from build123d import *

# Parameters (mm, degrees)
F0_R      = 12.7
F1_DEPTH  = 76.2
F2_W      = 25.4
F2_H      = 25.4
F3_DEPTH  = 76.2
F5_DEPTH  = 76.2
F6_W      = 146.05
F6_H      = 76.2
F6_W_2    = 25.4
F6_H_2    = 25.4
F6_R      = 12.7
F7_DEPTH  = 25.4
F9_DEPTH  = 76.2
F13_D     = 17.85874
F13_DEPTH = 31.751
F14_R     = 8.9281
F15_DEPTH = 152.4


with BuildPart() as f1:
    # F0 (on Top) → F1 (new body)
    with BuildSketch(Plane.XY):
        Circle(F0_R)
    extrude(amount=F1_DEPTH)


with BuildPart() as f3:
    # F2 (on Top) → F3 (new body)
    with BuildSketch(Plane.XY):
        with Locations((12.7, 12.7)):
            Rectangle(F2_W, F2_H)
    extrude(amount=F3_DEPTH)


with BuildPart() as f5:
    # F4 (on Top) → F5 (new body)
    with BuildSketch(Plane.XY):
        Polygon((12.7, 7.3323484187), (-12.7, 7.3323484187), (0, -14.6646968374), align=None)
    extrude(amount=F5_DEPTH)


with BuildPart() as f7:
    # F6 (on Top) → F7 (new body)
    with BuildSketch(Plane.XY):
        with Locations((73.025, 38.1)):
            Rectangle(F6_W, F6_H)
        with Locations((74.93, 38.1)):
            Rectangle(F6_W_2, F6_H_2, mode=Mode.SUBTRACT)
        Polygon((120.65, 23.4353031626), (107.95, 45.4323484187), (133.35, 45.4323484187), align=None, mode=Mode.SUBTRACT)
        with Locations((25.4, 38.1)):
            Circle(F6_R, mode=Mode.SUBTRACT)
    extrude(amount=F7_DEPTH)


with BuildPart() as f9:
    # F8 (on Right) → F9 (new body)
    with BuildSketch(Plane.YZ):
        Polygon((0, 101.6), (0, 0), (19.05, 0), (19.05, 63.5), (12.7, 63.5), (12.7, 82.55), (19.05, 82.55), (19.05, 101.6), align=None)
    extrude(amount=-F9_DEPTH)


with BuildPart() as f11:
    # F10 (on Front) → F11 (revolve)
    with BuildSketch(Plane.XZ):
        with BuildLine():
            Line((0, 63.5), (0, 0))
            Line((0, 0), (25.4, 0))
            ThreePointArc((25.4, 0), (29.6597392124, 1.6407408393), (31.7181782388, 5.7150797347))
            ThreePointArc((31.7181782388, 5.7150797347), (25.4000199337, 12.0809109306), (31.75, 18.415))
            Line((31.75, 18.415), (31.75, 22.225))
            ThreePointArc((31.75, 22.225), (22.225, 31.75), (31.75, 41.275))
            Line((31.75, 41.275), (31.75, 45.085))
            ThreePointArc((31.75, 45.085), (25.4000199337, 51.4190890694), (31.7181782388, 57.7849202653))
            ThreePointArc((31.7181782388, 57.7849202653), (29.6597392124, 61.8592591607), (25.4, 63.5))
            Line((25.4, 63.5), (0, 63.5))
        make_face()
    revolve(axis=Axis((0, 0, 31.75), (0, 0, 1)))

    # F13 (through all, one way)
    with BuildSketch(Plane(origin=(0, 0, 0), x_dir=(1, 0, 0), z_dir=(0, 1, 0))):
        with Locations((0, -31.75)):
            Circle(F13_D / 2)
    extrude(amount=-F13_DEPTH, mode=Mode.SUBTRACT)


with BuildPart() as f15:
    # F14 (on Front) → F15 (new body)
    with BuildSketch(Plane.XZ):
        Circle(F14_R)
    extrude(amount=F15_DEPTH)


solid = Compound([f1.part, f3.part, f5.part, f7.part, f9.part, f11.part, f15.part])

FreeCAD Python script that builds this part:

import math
import FreeCAD as App
import Part
import Sketcher
Q = App.Units.Quantity

doc = App.newDocument("Part")
body = doc.addObject("PartDesign::Body", "Body")

sketch1 = body.newObject("Sketcher::SketchObject", "Sketch")
sketch1.AttachmentSupport = (doc.getObject("XY_Plane"), [""])
sketch1.MapMode = "FlatFace"
sketch1.addGeometry(Part.Circle(App.Vector(0, 0, 0), App.Vector(0, 0, 1), 13), False)
sketch1.addConstraint(Sketcher.Constraint("Coincident", 0, 3, -1, 1))
sketch1.addConstraint(Sketcher.Constraint("Diameter", 0, Q("1 in")))
pad1 = body.newObject("PartDesign::Pad", "Pad")
pad1.Profile = sketch1
pad1.Length = Q("3 in")
body2 = doc.addObject("PartDesign::Body", "Body001")

sketch2 = body2.newObject("Sketcher::SketchObject", "Sketch001")
sketch2.AttachmentSupport = (doc.getObject("XY_Plane001"), [""])
sketch2.MapMode = "FlatFace"
sketch2.addGeometry(Part.LineSegment(App.Vector(0, 25, 0), App.Vector(0, 0, 0)), False)
sketch2.addGeometry(Part.LineSegment(App.Vector(0, 0, 0), App.Vector(25, 0, 0)), False)
sketch2.addGeometry(Part.LineSegment(App.Vector(25, 0, 0), App.Vector(25, 25, 0)), False)
sketch2.addGeometry(Part.LineSegment(App.Vector(25, 25, 0), App.Vector(0, 25, 0)), False)
sketch2.addConstraint(Sketcher.Constraint("Coincident", 0, 2, 1, 1))
sketch2.addConstraint(Sketcher.Constraint("Coincident", 1, 2, 2, 1))
sketch2.addConstraint(Sketcher.Constraint("Coincident", 2, 2, 3, 1))
sketch2.addConstraint(Sketcher.Constraint("Coincident", 3, 2, 0, 1))
sketch2.addConstraint(Sketcher.Constraint("Vertical", 0))
sketch2.addConstraint(Sketcher.Constraint("Horizontal", 1))
sketch2.addConstraint(Sketcher.Constraint("Vertical", 2))
sketch2.addConstraint(Sketcher.Constraint("Horizontal", 3))
sketch2.addConstraint(Sketcher.Constraint("Coincident", 0, 2, -1, 1))
sketch2.addConstraint(Sketcher.Constraint("Equal", 3, 0))
sketch2.addConstraint(Sketcher.Constraint("DistanceX", 1, 1, 1, 2, Q("1 in")))
pad2 = body2.newObject("PartDesign::Pad", "Pad001")
pad2.Profile = sketch2
pad2.Length = Q("3 in")
body3 = doc.addObject("PartDesign::Body", "Body002")

sketch3 = body3.newObject("Sketcher::SketchObject", "Sketch002")
sketch3.AttachmentSupport = (doc.getObject("XY_Plane002"), [""])
sketch3.MapMode = "FlatFace"
sketch3.addGeometry(Part.LineSegment(App.Vector(13, 7, 0), App.Vector(-13, 7, 0)), False)
sketch3.addGeometry(Part.LineSegment(App.Vector(-13, 7, 0), App.Vector(0, -15, 0)), False)
sketch3.addGeometry(Part.LineSegment(App.Vector(0, -15, 0), App.Vector(13, 7, 0)), False)
sketch3.addConstraint(Sketcher.Constraint("Coincident", 0, 2, 1, 1))
sketch3.addConstraint(Sketcher.Constraint("Coincident", 1, 2, 2, 1))
sketch3.addConstraint(Sketcher.Constraint("Coincident", 2, 2, 0, 1))
sketch3.addConstraint(Sketcher.Constraint("Horizontal", 0))
sketch3.addConstraint(Sketcher.Constraint("PointOnObject", 1, 2, -2))
sketch3.addConstraint(Sketcher.Constraint("Equal", 1, 2))
sketch3.addConstraint(Sketcher.Constraint("DistanceX", 0, 2, 0, 1, Q("1 in")))
sketch3.addConstraint(Sketcher.Constraint("Distance", 1, Q("1 in")))
sketch3.addConstraint(Sketcher.Constraint("DistanceY", -1, 1, 0, 2, 7.332348))
pad3 = body3.newObject("PartDesign::Pad", "Pad002")
pad3.Profile = sketch3
pad3.Length = Q("3 in")
body4 = doc.addObject("PartDesign::Body", "Body003")

sketch4 = body4.newObject("Sketcher::SketchObject", "Sketch003")
sketch4.AttachmentSupport = (doc.getObject("XY_Plane003"), [""])
sketch4.MapMode = "FlatFace"
sketch4.addGeometry(Part.LineSegment(App.Vector(0, 76, 0), App.Vector(0, 0, 0)), False)
sketch4.addGeometry(Part.LineSegment(App.Vector(0, 0, 0), App.Vector(146, 0, 0)), False)
sketch4.addGeometry(Part.LineSegment(App.Vector(146, 0, 0), App.Vector(146, 76, 0)), False)
sketch4.addGeometry(Part.LineSegment(App.Vector(146, 76, 0), App.Vector(0, 76, 0)), False)
sketch4.addGeometry(Part.LineSegment(App.Vector(133, 45, 0), App.Vector(121, 23, 0)), False)
sketch4.addGeometry(Part.LineSegment(App.Vector(121, 23, 0), App.Vector(108, 45, 0)), False)
sketch4.addGeometry(Part.LineSegment(App.Vector(108, 45, 0), App.Vector(133, 45, 0)), False)
sketch4.addGeometry(Part.Circle(App.Vector(25, 38, 0), App.Vector(0, 0, 1), 13), False)
sketch4.addGeometry(Part.LineSegment(App.Vector(88, 25, 0), App.Vector(62, 25, 0)), False)
sketch4.addGeometry(Part.LineSegment(App.Vector(62, 25, 0), App.Vector(62, 51, 0)), False)
sketch4.addGeometry(Part.LineSegment(App.Vector(62, 51, 0), App.Vector(88, 51, 0)), False)
sketch4.addGeometry(Part.LineSegment(App.Vector(88, 51, 0), App.Vector(88, 25, 0)), False)
sketch4.addConstraint(Sketcher.Constraint("Coincident", 0, 2, 1, 1))
sketch4.addConstraint(Sketcher.Constraint("Coincident", 1, 2, 2, 1))
sketch4.addConstraint(Sketcher.Constraint("Coincident", 2, 2, 3, 1))
sketch4.addConstraint(Sketcher.Constraint("Coincident", 3, 2, 0, 1))
sketch4.addConstraint(Sketcher.Constraint("Coincident", 4, 2, 5, 1))
sketch4.addConstraint(Sketcher.Constraint("Coincident", 5, 2, 6, 1))
sketch4.addConstraint(Sketcher.Constraint("Coincident", 6, 2, 4, 1))
sketch4.addConstraint(Sketcher.Constraint("Coincident", 8, 2, 9, 1))
sketch4.addConstraint(Sketcher.Constraint("Coincident", 9, 2, 10, 1))
sketch4.addConstraint(Sketcher.Constraint("Coincident", 10, 2, 11, 1))
sketch4.addConstraint(Sketcher.Constraint("Coincident", 11, 2, 8, 1))
sketch4.addConstraint(Sketcher.Constraint("Vertical", 0))
sketch4.addConstraint(Sketcher.Constraint("Horizontal", 1))
sketch4.addConstraint(Sketcher.Constraint("Vertical", 2))
sketch4.addConstraint(Sketcher.Constraint("Horizontal", 3))
sketch4.addConstraint(Sketcher.Constraint("Horizontal", 6))
sketch4.addConstraint(Sketcher.Constraint("Horizontal", 8))
sketch4.addConstraint(Sketcher.Constraint("Vertical", 9))
sketch4.addConstraint(Sketcher.Constraint("Horizontal", 10))
sketch4.addConstraint(Sketcher.Constraint("Vertical", 11))
sketch4.addConstraint(Sketcher.Constraint("Coincident", 0, 2, -1, 1))
sketch4.addConstraint(Sketcher.Constraint("Equal", 6, 8))
sketch4.addConstraint(Sketcher.Constraint("Equal", 10, 9))
sketch4.addConstraint(Sketcher.Constraint("Equal", 4, 5))
sketch4.addConstraint(Sketcher.Constraint("Diameter", 7, Q("1 in")))
sketch4.addConstraint(Sketcher.Constraint("DistanceX", 6, 1, 6, 2, Q("1 in")))
sketch4.addConstraint(Sketcher.Constraint("DistanceY", 0, 2, 0, 1, Q("3 in")))
sketch4.addConstraint(Sketcher.Constraint("Distance", 4, Q("1 in")))
sketch4.addConstraint(Sketcher.Constraint("DistanceX", -1, 1, 7, 3, Q("1 in")))
sketch4.addConstraint(Sketcher.Constraint("DistanceY", -1, 1, 8, 2, Q("1 in")))
sketch4.addConstraint(Sketcher.Constraint("DistanceX", 4, 2, 1, 2, Q("1 in")))
sketch4.addConstraint(Sketcher.Constraint("DistanceX", 1, 1, 1, 2, Q("5.75 in")))
sketch4.addConstraint(Sketcher.Constraint("DistanceY", -1, 1, 7, 3, Q("1.5 in")))
sketch4.addConstraint(Sketcher.Constraint("DistanceX", 8, 2, 5, 2, Q("1.8 in")))
sketch4.addConstraint(Sketcher.Constraint("DistanceY", -1, 1, 5, 2, 45.432348))
pad4 = body4.newObject("PartDesign::Pad", "Pad003")
pad4.Profile = sketch4
pad4.Length = Q("1 in")
body5 = doc.addObject("PartDesign::Body", "Body004")

sketch5 = body5.newObject("Sketcher::SketchObject", "Sketch004")
sketch5.AttachmentSupport = (doc.getObject("YZ_Plane004"), [""])
sketch5.MapMode = "FlatFace"
sketch5.addGeometry(Part.LineSegment(App.Vector(0, 102, 0), App.Vector(0, 0, 0)), False)
sketch5.addGeometry(Part.LineSegment(App.Vector(0, 0, 0), App.Vector(19, 0, 0)), False)
sketch5.addGeometry(Part.LineSegment(App.Vector(19, 0, 0), App.Vector(19, 64, 0)), False)
sketch5.addGeometry(Part.LineSegment(App.Vector(19, 64, 0), App.Vector(13, 64, 0)), False)
sketch5.addGeometry(Part.LineSegment(App.Vector(13, 64, 0), App.Vector(13, 83, 0)), False)
sketch5.addGeometry(Part.LineSegment(App.Vector(13, 83, 0), App.Vector(19, 83, 0)), False)
sketch5.addGeometry(Part.LineSegment(App.Vector(19, 83, 0), App.Vector(19, 102, 0)), False)
sketch5.addGeometry(Part.LineSegment(App.Vector(19, 102, 0), App.Vector(0, 102, 0)), False)
sketch5.addConstraint(Sketcher.Constraint("Coincident", 0, 2, 1, 1))
sketch5.addConstraint(Sketcher.Constraint("Coincident", 1, 2, 2, 1))
sketch5.addConstraint(Sketcher.Constraint("Coincident", 2, 2, 3, 1))
sketch5.addConstraint(Sketcher.Constraint("Coincident", 3, 2, 4, 1))
sketch5.addConstraint(Sketcher.Constraint("Coincident", 4, 2, 5, 1))
sketch5.addConstraint(Sketcher.Constraint("Coincident", 5, 2, 6, 1))
sketch5.addConstraint(Sketcher.Constraint("Coincident", 6, 2, 7, 1))
sketch5.addConstraint(Sketcher.Constraint("Coincident", 7, 2, 0, 1))
sketch5.addConstraint(Sketcher.Constraint("Vertical", 0))
sketch5.addConstraint(Sketcher.Constraint("Horizontal", 1))
sketch5.addConstraint(Sketcher.Constraint("Vertical", 2))
sketch5.addConstraint(Sketcher.Constraint("Horizontal", 3))
sketch5.addConstraint(Sketcher.Constraint("Vertical", 4))
sketch5.addConstraint(Sketcher.Constraint("Horizontal", 5))
sketch5.addConstraint(Sketcher.Constraint("Vertical", 6))
sketch5.addConstraint(Sketcher.Constraint("Horizontal", 7))
sketch5.addConstraint(Sketcher.Constraint("Coincident", 0, 2, -1, 1))
sketch5.addConstraint(Sketcher.Constraint("Vertical", 2, 2, 5, 2))
sketch5.addConstraint(Sketcher.Constraint("Equal", 7, 4))
sketch5.addConstraint(Sketcher.Constraint("Equal", 4, 6))
sketch5.addConstraint(Sketcher.Constraint("DistanceY", 0, 2, 0, 1, Q("4 in")))
sketch5.addConstraint(Sketcher.Constraint("DistanceY", 2, 1, 2, 2, Q("2.5 in")))
sketch5.addConstraint(Sketcher.Constraint("DistanceX", 3, 2, 3, 1, Q("0.25 in")))
pad5 = body5.newObject("PartDesign::Pad", "Pad004")
pad5.Profile = sketch5
pad5.Length = Q("3 in")
pad5.Reversed = True
body6 = doc.addObject("PartDesign::Body", "Body005")

sketch6 = body6.newObject("Sketcher::SketchObject", "Sketch005")
sketch6.AttachmentSupport = (doc.getObject("XZ_Plane005"), [""])
sketch6.MapMode = "FlatFace"
sketch6.addGeometry(Part.LineSegment(App.Vector(0, 63.5, 0), App.Vector(0, 0, 0)), False)
sketch6.addGeometry(Part.LineSegment(App.Vector(0, 0, 0), App.Vector(25.4, 0, 0)), False)
sketch6.addGeometry(Part.ArcOfCircle(Part.Circle(App.Vector(25.4, 6.3, 0), App.Vector(0, 0, 1), 6.3), math.radians(-90), math.radians(-6)), False)
sketch6.addGeometry(Part.ArcOfCircle(Part.Circle(App.Vector(31.8, 12.1, 0), App.Vector(0, 0, 1), 6.3), math.radians(90), math.radians(270)), False)
sketch6.addGeometry(Part.LineSegment(App.Vector(31.8, 18.4, 0), App.Vector(31.8, 22.2, 0)), False)
sketch6.addGeometry(Part.ArcOfCircle(Part.Circle(App.Vector(31.8, 31.8, 0), App.Vector(0, 0, 1), 9.5), math.radians(90), math.radians(270)), False)
sketch6.addGeometry(Part.LineSegment(App.Vector(31.8, 41.3, 0), App.Vector(31.8, 45.1, 0)), False)
sketch6.addGeometry(Part.ArcOfCircle(Part.Circle(App.Vector(31.8, 51.4, 0), App.Vector(0, 0, 1), 6.3), math.radians(90), math.radians(270)), False)
sketch6.addGeometry(Part.ArcOfCircle(Part.Circle(App.Vector(25.4, 57.1, 0), App.Vector(0, 0, 1), 6.3), math.radians(6), math.radians(90)), False)
sketch6.addGeometry(Part.LineSegment(App.Vector(25.4, 63.5, 0), App.Vector(0, 63.5, 0)), False)
sketch6.addConstraint(Sketcher.Constraint("Coincident", 0, 2, 1, 1))
sketch6.addConstraint(Sketcher.Constraint("Tangent", 1, 2, 2, 1))
sketch6.addConstraint(Sketcher.Constraint("Coincident", 2, 2, 3, 2))
sketch6.addConstraint(Sketcher.Constraint("Coincident", 3, 1, 4, 1))
sketch6.addConstraint(Sketcher.Constraint("Coincident", 4, 2, 5, 2))
sketch6.addConstraint(Sketcher.Constraint("Coincident", 5, 1, 6, 1))
sketch6.addConstraint(Sketcher.Constraint("Coincident", 6, 2, 7, 2))
sketch6.addConstraint(Sketcher.Constraint("Coincident", 7, 1, 8, 1))
sketch6.addConstraint(Sketcher.Constraint("Tangent", 8, 2, 9, 1))
sketch6.addConstraint(Sketcher.Constraint("Coincident", 9, 2, 0, 1))
sketch6.addConstraint(Sketcher.Constraint("Vertical", 0))
sketch6.addConstraint(Sketcher.Constraint("Horizontal", 1))
sketch6.addConstraint(Sketcher.Constraint("Vertical", 4))
sketch6.addConstraint(Sketcher.Constraint("Vertical", 6))
sketch6.addConstraint(Sketcher.Constraint("Horizontal", 9))
sketch6.addConstraint(Sketcher.Constraint("Coincident", 0, 2, -1, 1))
sketch6.addConstraint(Sketcher.Constraint("Equal", 2, 3))
sketch6.addConstraint(Sketcher.Constraint("Equal", 3, 7))
sketch6.addConstraint(Sketcher.Constraint("Equal", 7, 8))
sketch6.addConstraint(Sketcher.Constraint("Vertical", 3, 3, 5, 3))
sketch6.addConstraint(Sketcher.Constraint("Vertical", 5, 3, 7, 3))
sketch6.addConstraint(Sketcher.Constraint("Vertical", 2, 3, 8, 3))
sketch6.addConstraint(Sketcher.Constraint("Vertical", 7, 3, 3, 1))
sketch6.addConstraint(Sketcher.Constraint("Vertical", 4, 2, 5, 1))
sketch6.addConstraint(Sketcher.Constraint("Vertical", 2, 2, 7, 1))
sketch6.addConstraint(Sketcher.Constraint("Equal", 4, 6))
sketch6.addConstraint(Sketcher.Constraint("DistanceX", 1, 1, 1, 2, Q("1 in")))
sketch6.addConstraint(Sketcher.Constraint("Radius", 2, Q("0.25 in")))
sketch6.addConstraint(Sketcher.Constraint("DistanceY", 0, 2, 0, 1, Q("2.5 in")))
sketch6.addConstraint(Sketcher.Constraint("Radius", 5, Q("0.375 in")))
sketch6.addConstraint(Sketcher.Constraint("DistanceY", 4, 1, 4, 2, Q("0.15 in")))
sketch6.addConstraint(Sketcher.Constraint("DistanceX", -1, 1, 3, 3, Q("1.25 in")))
revolution = body6.newObject("PartDesign::Revolution", "Revolution")
revolution.Profile = sketch6
revolution.ReferenceAxis = (sketch6, ["V_Axis"])
revolution.Angle = 360

sketch7 = body6.newObject("Sketcher::SketchObject", "Sketch006")
sketch7.AttachmentSupport = (doc.getObject("XZ_Plane005"), [""])
sketch7.MapMode = "FlatFace"
sketch7.addGeometry(Part.Circle(App.Vector(0, 32, 0), App.Vector(0, 0, 1), 9), False)
sketch7.addConstraint(Sketcher.Constraint("PointOnObject", 0, 3, -2))
sketch7.addConstraint(Sketcher.Constraint("Diameter", 0, Q("0.7031 in")))
sketch7.addConstraint(Sketcher.Constraint("DistanceY", -1, 1, 0, 3, Q("1.25 in")))
pocket1 = body6.newObject("PartDesign::Pocket", "Pocket")
pocket1.Profile = sketch7
pocket1.Type = "ThroughAll"
pocket1.Reversed = True
body7 = doc.addObject("PartDesign::Body", "Body006")

sketch8 = body7.newObject("Sketcher::SketchObject", "Sketch007")
sketch8.AttachmentSupport = (doc.getObject("XZ_Plane006"), [""])
sketch8.MapMode = "FlatFace"
sketch8.addGeometry(Part.Circle(App.Vector(0, 0, 0), App.Vector(0, 0, 1), 9), False)
sketch8.addConstraint(Sketcher.Constraint("Coincident", 0, 3, -1, 1))
sketch8.addConstraint(Sketcher.Constraint("Diameter", 0, Q("0.703 in")))
pad6 = body7.newObject("PartDesign::Pad", "Pad005")
pad6.Profile = sketch8
pad6.Length = Q("6 in")

doc.recompute()
